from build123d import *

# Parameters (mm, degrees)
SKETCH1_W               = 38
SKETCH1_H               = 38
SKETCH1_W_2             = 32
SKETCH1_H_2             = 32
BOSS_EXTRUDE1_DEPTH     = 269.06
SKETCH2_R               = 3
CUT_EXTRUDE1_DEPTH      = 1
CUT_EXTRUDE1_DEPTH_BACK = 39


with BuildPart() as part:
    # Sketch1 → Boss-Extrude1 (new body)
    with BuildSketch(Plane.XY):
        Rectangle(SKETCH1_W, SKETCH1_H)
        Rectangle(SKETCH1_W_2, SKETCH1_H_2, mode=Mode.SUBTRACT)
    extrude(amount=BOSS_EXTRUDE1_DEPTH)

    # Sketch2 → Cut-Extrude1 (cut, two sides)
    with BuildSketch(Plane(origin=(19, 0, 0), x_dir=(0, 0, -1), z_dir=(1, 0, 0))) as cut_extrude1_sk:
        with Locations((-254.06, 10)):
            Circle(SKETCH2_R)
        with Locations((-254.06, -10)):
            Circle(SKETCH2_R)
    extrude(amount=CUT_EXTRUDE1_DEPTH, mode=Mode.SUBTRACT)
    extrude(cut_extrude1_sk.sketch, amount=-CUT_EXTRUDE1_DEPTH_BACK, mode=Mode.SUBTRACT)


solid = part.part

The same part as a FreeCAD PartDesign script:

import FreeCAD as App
import Part
import Sketcher

V = App.Vector
Q = App.Units.Quantity


def add_polygon(sketch, points):
    """Adds a closed chain of lines whose ends are joined by coincident constraints."""
    first, n = sketch.GeometryCount, len(points)
    for a, b in zip(points, points[1:] + points[:1]):
        sketch.addGeometry(Part.LineSegment(App.Vector(*a, 0), App.Vector(*b, 0)), False)
    for i in range(n):
        sketch.addConstraint(Sketcher.Constraint("Coincident", first + i, 2, first + (i + 1) % n, 1))

doc = App.newDocument("Part")
body = doc.addObject("PartDesign::Body", "Body")

# Sketch on XY plane
sketch1 = body.newObject("Sketcher::SketchObject", "Sketch")
sketch1.AttachmentSupport = (doc.getObject("XY_Plane"), [""])
sketch1.MapMode = "FlatFace"
add_polygon(sketch1, [(-19, 19), (-19, -19), (19, -19), (19, 19)])  # lines 0-3
add_polygon(sketch1, [(16, -16), (-16, -16), (-16, 16), (16, 16)])  # lines 4-7
sketch1.addConstraint(Sketcher.Constraint("Vertical", 0))
sketch1.addConstraint(Sketcher.Constraint("Horizontal", 1))
sketch1.addConstraint(Sketcher.Constraint("Vertical", 2))
sketch1.addConstraint(Sketcher.Constraint("Horizontal", 3))
sketch1.addConstraint(Sketcher.Constraint("Horizontal", 4))
sketch1.addConstraint(Sketcher.Constraint("Vertical", 5))
sketch1.addConstraint(Sketcher.Constraint("Horizontal", 6))
sketch1.addConstraint(Sketcher.Constraint("Vertical", 7))
sketch1.addConstraint(Sketcher.Constraint("Symmetric", 0, 2, 2, 2, -1, 1))
sketch1.addConstraint(Sketcher.Constraint("Symmetric", 4, 2, 6, 2, -1, 1))
sketch1.addConstraint(Sketcher.Constraint("Equal", 3, 0))
sketch1.addConstraint(Sketcher.Constraint("Equal", 6, 5))
sketch1.addConstraint(Sketcher.Constraint("DistanceX", 1, 1, 1, 2, Q("38 mm")))
sketch1.addConstraint(Sketcher.Constraint("DistanceX", 4, 2, 4, 1, Q("32 mm")))
pad1 = body.newObject("PartDesign::Pad", "Pad")
pad1.Profile = sketch1
pad1.Length = 269.06

# Sketch on YZ plane
sketch2 = body.newObject("Sketcher::SketchObject", "Sketch001")
sketch2.AttachmentSupport = (doc.getObject("YZ_Plane"), [""])
sketch2.MapMode = "FlatFace"
sketch2.AttachmentOffset = App.Placement(V(0, 0, 19), App.Rotation())
sketch2.addGeometry(Part.Circle(V(10, 254.1, 0), V(0, 0, 1), 3), False)
sketch2.addGeometry(Part.Circle(V(-10, 254.1, 0), V(0, 0, 1), 3), False)
sketch2.addConstraint(Sketcher.Constraint("Equal", 0, 1))
sketch2.addConstraint(Sketcher.Constraint("Symmetric", 0, 3, 1, 3, -2))
sketch2.addConstraint(Sketcher.Constraint("Diameter", 0, Q("6 mm")))
sketch2.addConstraint(Sketcher.Constraint("DistanceX", -1, 1, 0, 3, Q("10 mm")))
sketch2.addConstraint(Sketcher.Constraint("DistanceY", -1, 1, 0, 3, Q("254.06 mm")))
pocket1 = body.newObject("PartDesign::Pocket", "Pocket")
pocket1.Profile = sketch2
pocket1.Type = "ThroughAll"
pocket1.Midplane = True

doc.recompute()
